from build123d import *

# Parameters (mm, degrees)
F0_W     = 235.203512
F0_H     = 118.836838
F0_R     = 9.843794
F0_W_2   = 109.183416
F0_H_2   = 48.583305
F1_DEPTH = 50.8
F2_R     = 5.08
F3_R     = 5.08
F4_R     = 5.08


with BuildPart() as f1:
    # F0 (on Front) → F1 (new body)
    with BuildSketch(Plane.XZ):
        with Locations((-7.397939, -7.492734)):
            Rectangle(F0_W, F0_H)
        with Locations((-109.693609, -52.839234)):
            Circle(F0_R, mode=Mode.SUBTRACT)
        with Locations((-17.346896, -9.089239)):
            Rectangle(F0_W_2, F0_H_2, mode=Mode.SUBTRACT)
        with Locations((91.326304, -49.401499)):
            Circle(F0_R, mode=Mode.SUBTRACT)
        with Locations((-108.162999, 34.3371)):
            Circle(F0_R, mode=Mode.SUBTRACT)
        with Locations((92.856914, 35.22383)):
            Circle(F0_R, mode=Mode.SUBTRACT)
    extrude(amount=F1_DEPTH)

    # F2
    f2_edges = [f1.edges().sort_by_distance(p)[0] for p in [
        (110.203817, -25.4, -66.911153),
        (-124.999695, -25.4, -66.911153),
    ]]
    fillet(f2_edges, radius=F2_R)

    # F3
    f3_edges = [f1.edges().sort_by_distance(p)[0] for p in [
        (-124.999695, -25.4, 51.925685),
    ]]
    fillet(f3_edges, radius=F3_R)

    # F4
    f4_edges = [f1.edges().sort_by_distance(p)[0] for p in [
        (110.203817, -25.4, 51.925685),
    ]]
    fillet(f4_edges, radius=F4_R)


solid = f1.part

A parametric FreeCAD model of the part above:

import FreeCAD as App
import Part
import Sketcher
from FreeCAD import Vector
Q = App.Units.Quantity


def edges_at(feature, points):
    """Names of the edges that pass closest to the given points."""
    edges = feature.Shape.Edges
    near = lambda p: min(range(len(edges)), key=lambda i: edges[i].distToShape(Part.Vertex(*p))[0])
    return sorted({f"Edge{near(p) + 1}" for p in points})


def add_polygon(sketch, points):
    """Adds a closed chain of lines whose ends are joined by coincident constraints."""
    first, n = sketch.GeometryCount, len(points)
    for a, b in zip(points, points[1:] + points[:1]):
        sketch.addGeometry(Part.LineSegment(App.Vector(*a, 0), App.Vector(*b, 0)), False)
    for i in range(n):
        sketch.addConstraint(Sketcher.Constraint("Coincident", first + i, 2, first + (i + 1) % n, 1))

doc = App.newDocument("Part")
params = doc.addObject("Spreadsheet::Sheet", "Params")
for row, (alias, value) in enumerate([
    ("pad1_length", "2 in"),
    ("fillet_radius", "0.2 in"),
    ("fillet2_radius", "0.2 in"),
    ("fillet3_radius", "0.2 in"),
], start=1):
    params.set(f"A{row}", alias)
    params.set(f"B{row}", "=" + value)
    params.setAlias(f"B{row}", alias)

body = doc.addObject("PartDesign::Body", "Body")

# Sketch on XZ plane
sketch1 = body.newObject("Sketcher::SketchObject", "Sketch")
sketch1.AttachmentSupport = (doc.getObject("XZ_Plane"), [""])
sketch1.MapMode = "FlatFace"
add_polygon(sketch1, [(-125, 52), (-125, -67), (110, -67), (110, 52)])  # lines 0-3
sketch1.addGeometry(Part.Circle(Vector(-110, -53, 0), Vector(0, 0, 1), 10), False)  # 4
add_polygon(sketch1, [(37, -33), (-72, -33), (-72, 15), (37, 15)])  # lines 5-8
sketch1.addGeometry(Part.Circle(Vector(91, -49, 0), Vector(0, 0, 1), 10), False)  # 9
sketch1.addGeometry(Part.Circle(Vector(-108, 34, 0), Vector(0, 0, 1), 10), False)  # 10
sketch1.addGeometry(Part.Circle(Vector(93, 35, 0), Vector(0, 0, 1), 10), False)  # 11
sketch1.addConstraint(Sketcher.Constraint("Vertical", 0))
sketch1.addConstraint(Sketcher.Constraint("Horizontal", 1))
sketch1.addConstraint(Sketcher.Constraint("Vertical", 2))
sketch1.addConstraint(Sketcher.Constraint("Horizontal", 3))
sketch1.addConstraint(Sketcher.Constraint("Horizontal", 5))
sketch1.addConstraint(Sketcher.Constraint("Vertical", 6))
sketch1.addConstraint(Sketcher.Constraint("Horizontal", 7))
sketch1.addConstraint(Sketcher.Constraint("Vertical", 8))
sketch1.addConstraint(Sketcher.Constraint("Equal", 4, 9))
sketch1.addConstraint(Sketcher.Constraint("Equal", 9, 10))
sketch1.addConstraint(Sketcher.Constraint("Equal", 10, 11))
sketch1.addConstraint(Sketcher.Constraint("Diameter", 4, Q("19.687588 mm")))
sketch1.addConstraint(Sketcher.Constraint("DistanceX", 1, 1, 1, 2, Q("235.203512 mm")))
sketch1.addConstraint(Sketcher.Constraint("DistanceY", 0, 2, 0, 1, Q("118.836838 mm")))
sketch1.addConstraint(Sketcher.Constraint("DistanceY", 9, 3, -1, 1, Q("49.401499 mm")))
sketch1.addConstraint(Sketcher.Constraint("DistanceX", 10, 3, -1, 1, Q("108.162999 mm")))
sketch1.addConstraint(Sketcher.Constraint("DistanceY", -1, 1, 10, 3, Q("34.3371 mm")))
sketch1.addConstraint(Sketcher.Constraint("DistanceX", 0, 2, 9, 3, Q("216.325999 mm")))
sketch1.addConstraint(Sketcher.Constraint("DistanceX", 5, 2, 5, 1, Q("109.183416 mm")))
sketch1.addConstraint(Sketcher.Constraint("DistanceY", 6, 1, 6, 2, Q("48.583305 mm")))
sketch1.addConstraint(Sketcher.Constraint("DistanceX", 4, 3, -1, 1, Q("109.693609 mm")))
sketch1.addConstraint(Sketcher.Constraint("DistanceY", -1, 1, 11, 3, Q("35.22383 mm")))
sketch1.addConstraint(Sketcher.Constraint("DistanceY", 5, 2, -1, 1, Q("33.380891 mm")))
sketch1.addConstraint(Sketcher.Constraint("DistanceX", 9, 3, 11, 3, Q("1.53061 mm")))
sketch1.addConstraint(Sketcher.Constraint("DistanceY", 0, 2, 4, 3, Q("14.071919 mm")))
sketch1.addConstraint(Sketcher.Constraint("DistanceX", 0, 2, 5, 2, Q("53.061091 mm")))
sketch1.addConstraint(Sketcher.Constraint("DistanceY", 0, 2, 5, 2, Q("33.530262 mm")))
sketch1.addConstraint(Sketcher.Constraint("DistanceX", -1, 1, 9, 3, Q("91.326304 mm")))
pad1 = body.newObject("PartDesign::Pad", "Pad")
pad1.Profile = sketch1
pad1.setExpression("Length", "Params.pad1_length")
doc.recompute()

fillet = body.newObject("PartDesign::Fillet", "Fillet")
fillet.Base = (pad1, edges_at(pad1, [(110.204, -25.4, -66.911), (-125, -25.4, -66.911)]))
fillet.setExpression("Radius", "Params.fillet_radius")
doc.recompute()

fillet2 = body.newObject("PartDesign::Fillet", "Fillet001")
fillet2.Base = (fillet, edges_at(fillet, [(-125, -25.4, 51.926)]))
fillet2.setExpression("Radius", "Params.fillet2_radius")
doc.recompute()

fillet3 = body.newObject("PartDesign::Fillet", "Fillet002")
fillet3.Base = (fillet2, edges_at(fillet2, [(110.204, -25.4, 51.926)]))
fillet3.setExpression("Radius", "Params.fillet3_radius")

doc.recompute()
